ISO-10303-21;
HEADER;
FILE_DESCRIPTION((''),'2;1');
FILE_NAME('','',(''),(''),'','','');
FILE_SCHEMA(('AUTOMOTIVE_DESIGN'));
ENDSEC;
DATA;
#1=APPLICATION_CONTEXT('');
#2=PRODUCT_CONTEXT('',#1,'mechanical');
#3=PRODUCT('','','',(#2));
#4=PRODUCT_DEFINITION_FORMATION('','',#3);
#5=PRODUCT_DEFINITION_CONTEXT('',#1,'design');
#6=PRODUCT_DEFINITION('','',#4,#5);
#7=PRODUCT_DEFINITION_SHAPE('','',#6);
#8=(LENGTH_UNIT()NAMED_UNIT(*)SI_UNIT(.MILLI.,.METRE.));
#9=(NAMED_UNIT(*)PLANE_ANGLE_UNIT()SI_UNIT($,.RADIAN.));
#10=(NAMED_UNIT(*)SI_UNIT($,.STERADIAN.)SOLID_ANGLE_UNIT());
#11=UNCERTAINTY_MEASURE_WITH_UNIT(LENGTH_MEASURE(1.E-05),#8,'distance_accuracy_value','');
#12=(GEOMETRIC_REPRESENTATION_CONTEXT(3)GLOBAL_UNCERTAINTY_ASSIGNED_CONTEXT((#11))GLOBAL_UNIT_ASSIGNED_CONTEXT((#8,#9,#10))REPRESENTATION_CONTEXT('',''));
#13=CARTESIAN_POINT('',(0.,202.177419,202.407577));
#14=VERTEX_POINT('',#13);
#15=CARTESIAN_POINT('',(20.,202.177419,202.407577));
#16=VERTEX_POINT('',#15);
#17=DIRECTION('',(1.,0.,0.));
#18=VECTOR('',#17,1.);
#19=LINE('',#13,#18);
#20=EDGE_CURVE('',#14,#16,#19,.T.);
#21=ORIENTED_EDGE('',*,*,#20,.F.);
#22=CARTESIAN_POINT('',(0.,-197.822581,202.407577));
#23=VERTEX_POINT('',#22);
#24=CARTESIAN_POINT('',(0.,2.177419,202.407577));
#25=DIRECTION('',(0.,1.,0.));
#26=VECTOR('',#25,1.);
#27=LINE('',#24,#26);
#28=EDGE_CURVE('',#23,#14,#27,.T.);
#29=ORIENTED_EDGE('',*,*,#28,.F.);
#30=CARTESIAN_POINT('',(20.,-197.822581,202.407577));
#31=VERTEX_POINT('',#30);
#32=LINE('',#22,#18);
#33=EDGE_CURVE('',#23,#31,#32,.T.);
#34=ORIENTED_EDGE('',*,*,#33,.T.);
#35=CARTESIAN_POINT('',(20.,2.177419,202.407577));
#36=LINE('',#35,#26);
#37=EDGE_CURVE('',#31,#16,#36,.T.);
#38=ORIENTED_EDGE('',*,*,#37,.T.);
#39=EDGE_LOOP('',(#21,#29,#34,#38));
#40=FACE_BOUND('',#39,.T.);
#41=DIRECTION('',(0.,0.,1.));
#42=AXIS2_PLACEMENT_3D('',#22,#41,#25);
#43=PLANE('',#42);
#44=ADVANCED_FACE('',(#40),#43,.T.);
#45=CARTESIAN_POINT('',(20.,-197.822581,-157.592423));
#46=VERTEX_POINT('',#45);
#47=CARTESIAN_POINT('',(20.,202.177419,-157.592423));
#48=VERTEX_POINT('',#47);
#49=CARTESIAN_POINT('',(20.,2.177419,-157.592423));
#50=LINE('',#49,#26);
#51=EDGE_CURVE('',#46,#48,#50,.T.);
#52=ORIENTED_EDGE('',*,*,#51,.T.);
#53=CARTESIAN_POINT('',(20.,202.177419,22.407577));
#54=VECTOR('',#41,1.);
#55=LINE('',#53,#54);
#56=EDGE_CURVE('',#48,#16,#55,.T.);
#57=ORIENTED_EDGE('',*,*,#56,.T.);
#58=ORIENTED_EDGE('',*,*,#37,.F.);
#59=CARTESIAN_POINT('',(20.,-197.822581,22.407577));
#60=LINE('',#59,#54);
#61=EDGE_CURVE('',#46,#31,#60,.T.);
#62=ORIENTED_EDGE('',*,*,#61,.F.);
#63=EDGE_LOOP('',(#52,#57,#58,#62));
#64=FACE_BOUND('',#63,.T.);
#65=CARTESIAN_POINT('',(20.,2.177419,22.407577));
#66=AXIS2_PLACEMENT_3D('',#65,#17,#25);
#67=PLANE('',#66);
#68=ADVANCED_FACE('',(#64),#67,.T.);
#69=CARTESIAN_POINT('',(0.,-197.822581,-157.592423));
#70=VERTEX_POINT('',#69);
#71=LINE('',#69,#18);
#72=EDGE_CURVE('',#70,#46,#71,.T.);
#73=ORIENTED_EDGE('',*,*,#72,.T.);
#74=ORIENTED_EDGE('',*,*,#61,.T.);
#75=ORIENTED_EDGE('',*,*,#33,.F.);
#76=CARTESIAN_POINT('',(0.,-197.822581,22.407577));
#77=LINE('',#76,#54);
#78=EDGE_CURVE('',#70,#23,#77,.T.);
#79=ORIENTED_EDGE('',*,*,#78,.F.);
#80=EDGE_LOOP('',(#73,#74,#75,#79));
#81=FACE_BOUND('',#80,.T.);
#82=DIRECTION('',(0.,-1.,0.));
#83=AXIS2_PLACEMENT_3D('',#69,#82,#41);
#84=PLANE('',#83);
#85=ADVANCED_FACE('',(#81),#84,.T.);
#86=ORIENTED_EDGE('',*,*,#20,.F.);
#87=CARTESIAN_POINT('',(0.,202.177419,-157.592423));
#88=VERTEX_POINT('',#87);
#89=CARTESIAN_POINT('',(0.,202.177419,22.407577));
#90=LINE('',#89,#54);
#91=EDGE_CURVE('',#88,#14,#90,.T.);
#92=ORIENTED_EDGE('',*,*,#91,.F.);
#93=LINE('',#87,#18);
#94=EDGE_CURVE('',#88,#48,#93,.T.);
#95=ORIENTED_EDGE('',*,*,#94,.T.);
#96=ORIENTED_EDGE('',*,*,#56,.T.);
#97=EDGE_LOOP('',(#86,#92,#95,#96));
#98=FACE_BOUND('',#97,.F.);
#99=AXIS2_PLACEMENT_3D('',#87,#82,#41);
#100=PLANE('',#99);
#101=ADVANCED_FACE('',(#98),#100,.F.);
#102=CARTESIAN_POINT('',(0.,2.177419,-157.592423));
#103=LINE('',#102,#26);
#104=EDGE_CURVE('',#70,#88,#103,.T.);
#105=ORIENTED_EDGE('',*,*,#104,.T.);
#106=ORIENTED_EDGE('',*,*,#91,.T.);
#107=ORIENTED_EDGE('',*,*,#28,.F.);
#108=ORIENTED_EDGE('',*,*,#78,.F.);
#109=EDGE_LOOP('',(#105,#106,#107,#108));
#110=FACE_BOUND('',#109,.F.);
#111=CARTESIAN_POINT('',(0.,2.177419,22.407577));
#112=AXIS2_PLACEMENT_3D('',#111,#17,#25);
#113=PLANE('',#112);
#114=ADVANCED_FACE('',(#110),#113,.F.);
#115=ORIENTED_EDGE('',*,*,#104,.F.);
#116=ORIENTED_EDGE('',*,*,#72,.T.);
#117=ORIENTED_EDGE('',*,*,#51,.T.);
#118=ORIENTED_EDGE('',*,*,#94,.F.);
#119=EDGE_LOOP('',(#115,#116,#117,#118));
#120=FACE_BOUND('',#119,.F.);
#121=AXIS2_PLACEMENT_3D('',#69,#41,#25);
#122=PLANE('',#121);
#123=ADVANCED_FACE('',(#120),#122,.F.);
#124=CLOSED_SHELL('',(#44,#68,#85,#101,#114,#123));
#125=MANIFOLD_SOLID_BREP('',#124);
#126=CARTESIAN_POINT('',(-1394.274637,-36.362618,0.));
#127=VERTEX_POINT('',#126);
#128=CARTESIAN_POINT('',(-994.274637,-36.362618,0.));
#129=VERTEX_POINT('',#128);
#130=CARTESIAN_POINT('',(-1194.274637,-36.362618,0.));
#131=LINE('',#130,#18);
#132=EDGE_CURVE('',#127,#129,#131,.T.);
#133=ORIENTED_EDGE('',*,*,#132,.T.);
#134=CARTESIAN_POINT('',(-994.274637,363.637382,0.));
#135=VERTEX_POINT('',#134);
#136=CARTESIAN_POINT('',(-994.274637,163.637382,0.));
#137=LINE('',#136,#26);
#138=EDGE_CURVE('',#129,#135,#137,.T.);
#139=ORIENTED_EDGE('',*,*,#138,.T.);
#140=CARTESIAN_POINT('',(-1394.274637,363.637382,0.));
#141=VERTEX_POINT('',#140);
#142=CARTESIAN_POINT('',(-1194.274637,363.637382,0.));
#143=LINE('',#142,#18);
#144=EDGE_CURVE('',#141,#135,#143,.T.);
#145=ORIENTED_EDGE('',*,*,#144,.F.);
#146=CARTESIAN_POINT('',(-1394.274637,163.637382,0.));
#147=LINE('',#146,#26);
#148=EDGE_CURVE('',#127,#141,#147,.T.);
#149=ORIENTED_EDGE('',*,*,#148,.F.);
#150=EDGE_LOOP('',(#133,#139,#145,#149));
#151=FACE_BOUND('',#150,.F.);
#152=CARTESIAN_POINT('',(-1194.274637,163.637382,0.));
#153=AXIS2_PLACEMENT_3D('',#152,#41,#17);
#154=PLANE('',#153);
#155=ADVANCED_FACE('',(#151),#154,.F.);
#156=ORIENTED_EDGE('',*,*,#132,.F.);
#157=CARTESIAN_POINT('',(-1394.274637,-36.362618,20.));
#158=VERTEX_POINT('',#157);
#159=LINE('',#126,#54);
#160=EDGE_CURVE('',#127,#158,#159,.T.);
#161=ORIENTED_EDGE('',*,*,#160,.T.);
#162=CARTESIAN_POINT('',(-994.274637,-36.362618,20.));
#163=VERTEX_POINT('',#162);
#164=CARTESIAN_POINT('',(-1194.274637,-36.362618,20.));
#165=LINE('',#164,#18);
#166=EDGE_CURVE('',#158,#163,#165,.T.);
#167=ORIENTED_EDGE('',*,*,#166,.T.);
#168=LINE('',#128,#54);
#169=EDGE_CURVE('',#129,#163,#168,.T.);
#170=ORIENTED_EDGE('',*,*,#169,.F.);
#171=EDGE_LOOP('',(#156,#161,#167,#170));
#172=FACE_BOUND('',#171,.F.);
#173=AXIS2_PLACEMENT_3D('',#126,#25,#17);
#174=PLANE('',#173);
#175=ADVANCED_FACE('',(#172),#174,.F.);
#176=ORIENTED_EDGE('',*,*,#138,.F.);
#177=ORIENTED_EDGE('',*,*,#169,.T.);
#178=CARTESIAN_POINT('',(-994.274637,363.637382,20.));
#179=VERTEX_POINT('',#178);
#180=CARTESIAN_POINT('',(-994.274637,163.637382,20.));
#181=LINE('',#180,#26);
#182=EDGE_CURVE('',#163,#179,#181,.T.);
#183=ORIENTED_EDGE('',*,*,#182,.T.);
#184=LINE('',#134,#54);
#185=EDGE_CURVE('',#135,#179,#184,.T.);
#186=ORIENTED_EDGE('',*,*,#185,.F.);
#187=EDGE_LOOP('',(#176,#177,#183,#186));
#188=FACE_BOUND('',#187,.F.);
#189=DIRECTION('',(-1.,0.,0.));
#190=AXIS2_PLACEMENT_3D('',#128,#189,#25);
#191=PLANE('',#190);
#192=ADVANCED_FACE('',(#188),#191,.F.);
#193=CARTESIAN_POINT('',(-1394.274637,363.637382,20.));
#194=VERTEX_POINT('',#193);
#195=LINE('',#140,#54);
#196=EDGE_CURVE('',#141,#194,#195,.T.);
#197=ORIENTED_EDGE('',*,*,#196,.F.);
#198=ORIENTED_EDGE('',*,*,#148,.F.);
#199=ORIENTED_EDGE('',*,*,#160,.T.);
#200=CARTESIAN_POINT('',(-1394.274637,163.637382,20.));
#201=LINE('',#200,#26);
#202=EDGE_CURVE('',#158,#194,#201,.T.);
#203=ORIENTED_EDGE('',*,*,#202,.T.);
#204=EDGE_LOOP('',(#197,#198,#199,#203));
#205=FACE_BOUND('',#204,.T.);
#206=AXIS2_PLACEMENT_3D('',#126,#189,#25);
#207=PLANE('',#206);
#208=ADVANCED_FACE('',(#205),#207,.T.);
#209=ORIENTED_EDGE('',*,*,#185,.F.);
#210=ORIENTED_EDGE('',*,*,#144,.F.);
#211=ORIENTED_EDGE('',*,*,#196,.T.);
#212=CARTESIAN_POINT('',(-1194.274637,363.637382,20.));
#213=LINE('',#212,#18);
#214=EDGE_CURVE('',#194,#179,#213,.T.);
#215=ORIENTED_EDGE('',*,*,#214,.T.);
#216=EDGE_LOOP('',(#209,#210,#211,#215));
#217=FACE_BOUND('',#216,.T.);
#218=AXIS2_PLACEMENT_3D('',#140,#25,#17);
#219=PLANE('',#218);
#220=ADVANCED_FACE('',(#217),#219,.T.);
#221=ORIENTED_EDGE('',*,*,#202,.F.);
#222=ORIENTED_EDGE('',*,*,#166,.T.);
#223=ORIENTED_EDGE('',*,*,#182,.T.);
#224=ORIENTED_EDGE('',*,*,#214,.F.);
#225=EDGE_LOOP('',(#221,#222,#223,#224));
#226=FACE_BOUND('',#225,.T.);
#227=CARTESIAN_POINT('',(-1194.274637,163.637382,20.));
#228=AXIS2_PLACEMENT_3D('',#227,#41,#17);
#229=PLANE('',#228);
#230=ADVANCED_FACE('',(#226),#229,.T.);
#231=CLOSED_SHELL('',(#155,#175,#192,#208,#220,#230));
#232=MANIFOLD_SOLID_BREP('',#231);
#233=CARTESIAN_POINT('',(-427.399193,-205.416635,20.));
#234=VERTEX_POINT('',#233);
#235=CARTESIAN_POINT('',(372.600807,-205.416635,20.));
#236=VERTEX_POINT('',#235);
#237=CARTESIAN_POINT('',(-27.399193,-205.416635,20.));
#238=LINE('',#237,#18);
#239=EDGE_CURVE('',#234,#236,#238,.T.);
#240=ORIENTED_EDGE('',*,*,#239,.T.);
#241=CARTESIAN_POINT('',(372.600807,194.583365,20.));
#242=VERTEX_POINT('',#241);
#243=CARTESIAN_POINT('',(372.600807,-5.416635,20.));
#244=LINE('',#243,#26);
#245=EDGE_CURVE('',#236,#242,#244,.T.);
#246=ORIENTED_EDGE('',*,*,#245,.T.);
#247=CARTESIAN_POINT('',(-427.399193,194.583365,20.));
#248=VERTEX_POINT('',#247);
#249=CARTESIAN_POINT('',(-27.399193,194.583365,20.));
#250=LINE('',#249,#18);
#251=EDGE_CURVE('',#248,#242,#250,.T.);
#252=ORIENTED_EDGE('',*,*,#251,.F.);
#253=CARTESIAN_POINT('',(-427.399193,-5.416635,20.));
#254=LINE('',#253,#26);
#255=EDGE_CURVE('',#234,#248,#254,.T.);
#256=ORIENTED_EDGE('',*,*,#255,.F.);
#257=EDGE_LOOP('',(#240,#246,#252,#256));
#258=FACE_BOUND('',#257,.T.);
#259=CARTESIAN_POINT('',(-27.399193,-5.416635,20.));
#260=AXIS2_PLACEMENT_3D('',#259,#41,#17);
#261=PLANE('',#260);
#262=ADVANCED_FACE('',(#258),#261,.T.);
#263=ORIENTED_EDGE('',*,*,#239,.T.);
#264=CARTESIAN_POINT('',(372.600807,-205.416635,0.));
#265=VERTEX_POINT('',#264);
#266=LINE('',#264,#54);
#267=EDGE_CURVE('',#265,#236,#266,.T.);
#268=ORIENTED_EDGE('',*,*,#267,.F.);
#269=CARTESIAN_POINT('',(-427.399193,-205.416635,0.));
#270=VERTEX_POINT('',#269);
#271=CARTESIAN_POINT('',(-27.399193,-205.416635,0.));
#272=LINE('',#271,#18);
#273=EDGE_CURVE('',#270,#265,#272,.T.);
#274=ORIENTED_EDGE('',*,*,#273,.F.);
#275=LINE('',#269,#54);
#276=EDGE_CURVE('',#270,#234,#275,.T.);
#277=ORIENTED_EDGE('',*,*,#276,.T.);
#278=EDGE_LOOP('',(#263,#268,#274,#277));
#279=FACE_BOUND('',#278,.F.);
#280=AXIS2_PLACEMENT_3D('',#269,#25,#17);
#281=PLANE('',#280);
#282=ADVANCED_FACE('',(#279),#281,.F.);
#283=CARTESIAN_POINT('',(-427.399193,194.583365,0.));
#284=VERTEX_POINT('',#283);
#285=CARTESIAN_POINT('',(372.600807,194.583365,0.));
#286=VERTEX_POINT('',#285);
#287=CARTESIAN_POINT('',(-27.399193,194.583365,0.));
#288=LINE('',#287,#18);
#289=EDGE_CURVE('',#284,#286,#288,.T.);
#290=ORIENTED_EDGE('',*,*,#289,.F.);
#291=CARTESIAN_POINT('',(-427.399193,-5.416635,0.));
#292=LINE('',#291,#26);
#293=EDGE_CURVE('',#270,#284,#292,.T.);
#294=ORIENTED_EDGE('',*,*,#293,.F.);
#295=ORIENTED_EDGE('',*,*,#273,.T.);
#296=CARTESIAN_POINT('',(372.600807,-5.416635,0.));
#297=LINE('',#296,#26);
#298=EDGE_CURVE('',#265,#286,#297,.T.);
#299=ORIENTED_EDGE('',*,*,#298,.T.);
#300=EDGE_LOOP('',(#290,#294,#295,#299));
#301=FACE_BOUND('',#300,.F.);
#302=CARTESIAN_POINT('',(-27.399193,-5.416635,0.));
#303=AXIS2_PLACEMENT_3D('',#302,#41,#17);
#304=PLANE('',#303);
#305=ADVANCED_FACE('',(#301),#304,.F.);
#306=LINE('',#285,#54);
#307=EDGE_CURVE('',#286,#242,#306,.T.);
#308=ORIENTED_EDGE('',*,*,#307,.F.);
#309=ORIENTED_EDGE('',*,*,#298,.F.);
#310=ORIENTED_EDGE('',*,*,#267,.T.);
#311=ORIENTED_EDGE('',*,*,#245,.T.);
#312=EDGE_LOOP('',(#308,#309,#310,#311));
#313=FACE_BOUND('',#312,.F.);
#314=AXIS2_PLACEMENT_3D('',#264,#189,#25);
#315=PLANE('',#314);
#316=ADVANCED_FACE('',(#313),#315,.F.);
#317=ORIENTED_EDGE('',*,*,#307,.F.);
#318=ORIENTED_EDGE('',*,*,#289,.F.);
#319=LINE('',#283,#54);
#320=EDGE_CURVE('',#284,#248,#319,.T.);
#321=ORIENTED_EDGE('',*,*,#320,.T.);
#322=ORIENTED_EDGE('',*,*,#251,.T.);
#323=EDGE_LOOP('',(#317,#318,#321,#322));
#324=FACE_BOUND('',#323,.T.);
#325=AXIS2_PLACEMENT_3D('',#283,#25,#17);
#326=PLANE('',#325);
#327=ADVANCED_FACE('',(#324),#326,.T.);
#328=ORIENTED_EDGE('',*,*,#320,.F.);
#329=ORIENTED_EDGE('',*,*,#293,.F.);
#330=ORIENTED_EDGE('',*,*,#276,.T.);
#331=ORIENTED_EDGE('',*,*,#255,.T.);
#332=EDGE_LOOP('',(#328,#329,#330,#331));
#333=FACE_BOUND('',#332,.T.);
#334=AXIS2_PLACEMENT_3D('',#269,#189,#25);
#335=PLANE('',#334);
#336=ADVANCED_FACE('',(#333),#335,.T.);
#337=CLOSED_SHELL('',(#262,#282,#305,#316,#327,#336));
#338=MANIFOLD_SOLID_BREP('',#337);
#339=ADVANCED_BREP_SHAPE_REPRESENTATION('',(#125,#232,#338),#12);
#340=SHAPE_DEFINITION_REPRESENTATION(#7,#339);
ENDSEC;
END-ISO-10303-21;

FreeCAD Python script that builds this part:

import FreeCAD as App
import Part
import Sketcher
Q = App.Units.Quantity


def add_polygon(sketch, points):
    """Adds a closed chain of lines whose ends are joined by coincident constraints."""
    first, n = sketch.GeometryCount, len(points)
    for a, b in zip(points, points[1:] + points[:1]):
        sketch.addGeometry(Part.LineSegment(App.Vector(*a, 0), App.Vector(*b, 0)), False)
    for i in range(n):
        sketch.addConstraint(Sketcher.Constraint("Coincident", first + i, 2, first + (i + 1) % n, 1))

doc = App.newDocument("Part")
body = doc.addObject("PartDesign::Body", "Body")

sketch1 = doc.addObject("Sketcher::SketchObject", "Sketch")
body.addObject(sketch1)
sketch1.AttachmentSupport = (doc.XY_Plane, [""])
sketch1.MapMode = "FlatFace"
add_polygon(sketch1, [(-1394, 364), (-1394, -36), (-994, -36), (-994, 364)])
sketch1.addConstraint([
    Sketcher.Constraint("Vertical", 0),
    Sketcher.Constraint("Horizontal", 1),
    Sketcher.Constraint("Vertical", 2),
    Sketcher.Constraint("Horizontal", 3),
    Sketcher.Constraint("Equal", 3, 0),
    Sketcher.Constraint("DistanceX", 1, 1, 1, 2, Q("400 mm")),
    Sketcher.Constraint("DistanceY", -1, 1, 2, 2, Q("363.637382 mm")),
    Sketcher.Constraint("DistanceX", 0, 2, -1, 1, Q("1394.274637 mm")),
])
pad1 = doc.addObject("PartDesign::Pad", "Pad")
body.addObject(pad1)
pad1.Profile = sketch1
pad1.Length = 20
body2 = doc.addObject("PartDesign::Body", "Body001")

sketch2 = doc.addObject("Sketcher::SketchObject", "Sketch001")
body2.addObject(sketch2)
sketch2.AttachmentSupport = (doc.getObject("YZ_Plane001"), [""])
sketch2.MapMode = "FlatFace"
add_polygon(sketch2, [(-198, 202), (-198, -158), (202, -158), (202, 202)])
sketch2.addConstraint([
    Sketcher.Constraint("Vertical", 0),
    Sketcher.Constraint("Horizontal", 1),
    Sketcher.Constraint("Vertical", 2),
    Sketcher.Constraint("Horizontal", 3),
    Sketcher.Constraint("DistanceX", 1, 1, 1, 2, Q("400 mm")),
    Sketcher.Constraint("DistanceY", 0, 2, 0, 1, Q("360 mm")),
    Sketcher.Constraint("DistanceX", 0, 2, -1, 1, Q("197.822581 mm")),
    Sketcher.Constraint("DistanceY", 0, 2, -1, 1, Q("157.592423 mm")),
])
pad2 = doc.addObject("PartDesign::Pad", "Pad001")
body2.addObject(pad2)
pad2.Profile = sketch2
pad2.Length = 20
body3 = doc.addObject("PartDesign::Body", "Body002")

sketch3 = doc.addObject("Sketcher::SketchObject", "Sketch002")
body3.addObject(sketch3)
sketch3.AttachmentSupport = (doc.getObject("XY_Plane002"), [""])
sketch3.MapMode = "FlatFace"
add_polygon(sketch3, [(-427, 195), (-427, -205), (373, -205), (373, 195)])
sketch3.addConstraint([
    Sketcher.Constraint("Vertical", 0),
    Sketcher.Constraint("Horizontal", 1),
    Sketcher.Constraint("Vertical", 2),
    Sketcher.Constraint("Horizontal", 3),
    Sketcher.Constraint("DistanceX", 1, 1, 1, 2, Q("800 mm")),
    Sketcher.Constraint("DistanceY", 0, 2, 0, 1, Q("400 mm")),
    Sketcher.Constraint("DistanceX", 0, 2, -1, 1, Q("427.399193 mm")),
    Sketcher.Constraint("DistanceY", 0, 2, -1, 1, Q("205.416635 mm")),
])
pad3 = doc.addObject("PartDesign::Pad", "Pad002")
body3.addObject(pad3)
pad3.Profile = sketch3
pad3.Length = 20

doc.recompute()
